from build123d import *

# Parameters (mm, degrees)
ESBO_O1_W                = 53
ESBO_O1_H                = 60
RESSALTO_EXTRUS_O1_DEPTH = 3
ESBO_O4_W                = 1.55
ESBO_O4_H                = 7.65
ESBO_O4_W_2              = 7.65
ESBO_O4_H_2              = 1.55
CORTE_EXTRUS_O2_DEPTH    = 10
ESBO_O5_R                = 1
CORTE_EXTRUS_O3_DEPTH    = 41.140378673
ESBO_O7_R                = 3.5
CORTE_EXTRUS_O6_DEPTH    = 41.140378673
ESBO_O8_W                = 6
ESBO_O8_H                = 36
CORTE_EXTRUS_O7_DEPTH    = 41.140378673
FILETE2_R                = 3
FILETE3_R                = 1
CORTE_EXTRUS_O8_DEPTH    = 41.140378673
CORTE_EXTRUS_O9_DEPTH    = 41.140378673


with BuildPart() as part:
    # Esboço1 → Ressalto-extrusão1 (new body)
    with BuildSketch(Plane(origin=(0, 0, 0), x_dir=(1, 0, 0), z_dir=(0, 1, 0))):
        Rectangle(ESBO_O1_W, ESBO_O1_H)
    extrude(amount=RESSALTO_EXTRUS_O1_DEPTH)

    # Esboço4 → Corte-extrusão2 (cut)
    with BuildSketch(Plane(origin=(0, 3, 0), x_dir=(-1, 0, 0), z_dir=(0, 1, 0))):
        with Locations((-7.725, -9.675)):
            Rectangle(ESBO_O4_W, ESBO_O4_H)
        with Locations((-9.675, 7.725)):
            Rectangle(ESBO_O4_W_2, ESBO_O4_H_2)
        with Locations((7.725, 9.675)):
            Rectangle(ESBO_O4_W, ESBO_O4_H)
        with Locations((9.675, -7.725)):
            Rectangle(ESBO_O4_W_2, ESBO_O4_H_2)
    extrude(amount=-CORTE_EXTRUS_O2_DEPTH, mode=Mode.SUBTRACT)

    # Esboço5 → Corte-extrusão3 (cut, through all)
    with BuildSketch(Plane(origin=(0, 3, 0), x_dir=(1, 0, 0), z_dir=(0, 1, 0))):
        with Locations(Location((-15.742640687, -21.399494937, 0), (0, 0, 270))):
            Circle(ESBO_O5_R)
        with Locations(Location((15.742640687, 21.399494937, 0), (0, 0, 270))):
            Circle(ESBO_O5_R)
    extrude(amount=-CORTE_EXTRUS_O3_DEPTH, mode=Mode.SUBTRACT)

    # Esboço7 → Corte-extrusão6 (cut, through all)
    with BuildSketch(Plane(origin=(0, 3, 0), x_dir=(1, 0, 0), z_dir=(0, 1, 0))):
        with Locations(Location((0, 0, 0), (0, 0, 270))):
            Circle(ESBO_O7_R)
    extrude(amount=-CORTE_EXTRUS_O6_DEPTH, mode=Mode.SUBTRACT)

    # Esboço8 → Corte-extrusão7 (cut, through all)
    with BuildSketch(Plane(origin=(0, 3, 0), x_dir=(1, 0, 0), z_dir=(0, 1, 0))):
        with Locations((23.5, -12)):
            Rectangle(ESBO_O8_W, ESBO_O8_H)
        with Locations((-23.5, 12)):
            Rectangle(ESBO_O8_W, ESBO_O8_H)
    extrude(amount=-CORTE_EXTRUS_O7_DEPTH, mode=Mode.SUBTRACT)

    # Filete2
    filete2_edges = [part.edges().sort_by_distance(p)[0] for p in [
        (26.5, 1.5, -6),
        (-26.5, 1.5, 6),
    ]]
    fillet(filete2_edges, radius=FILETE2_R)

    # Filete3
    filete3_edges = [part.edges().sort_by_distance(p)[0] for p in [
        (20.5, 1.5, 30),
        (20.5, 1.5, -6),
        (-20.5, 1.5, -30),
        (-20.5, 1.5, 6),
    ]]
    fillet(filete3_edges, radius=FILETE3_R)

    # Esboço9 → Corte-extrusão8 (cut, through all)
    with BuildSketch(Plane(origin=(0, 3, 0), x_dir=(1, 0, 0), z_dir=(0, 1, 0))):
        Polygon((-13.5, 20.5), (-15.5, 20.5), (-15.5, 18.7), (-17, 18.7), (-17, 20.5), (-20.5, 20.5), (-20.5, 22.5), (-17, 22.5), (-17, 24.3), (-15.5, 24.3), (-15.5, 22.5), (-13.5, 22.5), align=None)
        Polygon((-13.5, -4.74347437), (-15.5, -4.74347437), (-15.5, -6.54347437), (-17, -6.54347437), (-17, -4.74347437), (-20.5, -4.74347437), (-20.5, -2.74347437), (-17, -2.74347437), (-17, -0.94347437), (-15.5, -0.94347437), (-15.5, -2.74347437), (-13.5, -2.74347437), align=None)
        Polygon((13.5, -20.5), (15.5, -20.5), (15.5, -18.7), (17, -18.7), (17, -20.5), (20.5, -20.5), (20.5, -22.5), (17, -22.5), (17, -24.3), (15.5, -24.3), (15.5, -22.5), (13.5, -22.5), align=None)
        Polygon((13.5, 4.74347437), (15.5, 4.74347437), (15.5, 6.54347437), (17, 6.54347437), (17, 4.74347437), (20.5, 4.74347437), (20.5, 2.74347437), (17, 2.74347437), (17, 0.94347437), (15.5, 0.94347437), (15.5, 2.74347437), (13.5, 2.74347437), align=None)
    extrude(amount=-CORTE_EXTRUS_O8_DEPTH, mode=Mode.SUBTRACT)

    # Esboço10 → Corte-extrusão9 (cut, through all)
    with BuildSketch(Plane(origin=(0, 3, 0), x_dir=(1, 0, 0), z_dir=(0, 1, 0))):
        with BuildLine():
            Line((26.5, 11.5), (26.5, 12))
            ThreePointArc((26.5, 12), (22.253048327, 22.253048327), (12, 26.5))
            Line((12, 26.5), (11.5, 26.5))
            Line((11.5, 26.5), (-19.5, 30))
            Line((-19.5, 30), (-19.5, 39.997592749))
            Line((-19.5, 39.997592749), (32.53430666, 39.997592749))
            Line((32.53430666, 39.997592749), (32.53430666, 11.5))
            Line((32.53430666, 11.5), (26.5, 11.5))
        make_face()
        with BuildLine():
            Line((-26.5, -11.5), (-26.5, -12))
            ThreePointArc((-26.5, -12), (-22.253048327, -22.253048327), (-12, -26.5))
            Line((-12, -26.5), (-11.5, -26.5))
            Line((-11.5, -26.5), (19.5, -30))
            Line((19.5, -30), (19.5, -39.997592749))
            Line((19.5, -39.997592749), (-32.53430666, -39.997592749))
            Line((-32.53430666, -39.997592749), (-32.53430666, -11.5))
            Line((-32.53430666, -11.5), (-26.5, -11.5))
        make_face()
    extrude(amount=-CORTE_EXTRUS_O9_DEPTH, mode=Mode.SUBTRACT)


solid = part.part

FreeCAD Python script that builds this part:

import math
import FreeCAD as App
import Part
import Sketcher
from FreeCAD import Vector
Q = App.Units.Quantity


def edges_at(feature, points):
    """Names of the edges that pass closest to the given points."""
    edges = feature.Shape.Edges
    near = lambda p: min(range(len(edges)), key=lambda i: edges[i].distToShape(Part.Vertex(*p))[0])
    return sorted({f"Edge{near(p) + 1}" for p in points})


def add_polygon(sketch, points):
    """Adds a closed chain of lines whose ends are joined by coincident constraints."""
    first, n = sketch.GeometryCount, len(points)
    for a, b in zip(points, points[1:] + points[:1]):
        sketch.addGeometry(Part.LineSegment(App.Vector(*a, 0), App.Vector(*b, 0)), False)
    for i in range(n):
        sketch.addConstraint(Sketcher.Constraint("Coincident", first + i, 2, first + (i + 1) % n, 1))

doc = App.newDocument("Part")
body = doc.addObject("PartDesign::Body", "Body")

# Sketch on XZ plane
sketch1 = body.newObject("Sketcher::SketchObject", "Sketch")
sketch1.AttachmentSupport = (doc.getObject("XZ_Plane"), [""])
sketch1.MapMode = "FlatFace"
add_polygon(sketch1, [(-26, -30), (-26, 30), (26, 30), (26, -30)])  # lines 0-3
sketch1.addConstraint([
    Sketcher.Constraint("Vertical", 0),
    Sketcher.Constraint("Horizontal", 1),
    Sketcher.Constraint("Vertical", 2),
    Sketcher.Constraint("Horizontal", 3),
    Sketcher.Constraint("Symmetric", 0, 2, 2, 2, -1, 1),
    Sketcher.Constraint("DistanceX", 1, 1, 1, 2, Q("53 mm")),
    Sketcher.Constraint("DistanceY", 0, 1, 0, 2, Q("60 mm")),
])
pad1 = body.newObject("PartDesign::Pad", "Pad")
pad1.Profile = sketch1
pad1.Length = 3
pad1.Reversed = True

# Sketch on XZ plane
sketch2 = body.newObject("Sketcher::SketchObject", "Sketch001")
sketch2.AttachmentSupport = (doc.getObject("XZ_Plane"), [""])
sketch2.MapMode = "FlatFace"
sketch2.AttachmentOffset = App.Placement(Vector(0, 0, -3), App.Rotation())
add_polygon(sketch2, [(8.5, -5.8), (8.5, -13.5), (7, -13.5), (7, -5.8)])  # lines 0-3
add_polygon(sketch2, [(13.5, 8.5), (13.5, 7), (5.8, 7), (5.8, 8.5)])  # lines 4-7
add_polygon(sketch2, [(-7, 13.5), (-7, 5.8), (-8.5, 5.8), (-8.5, 13.5)])  # lines 8-11
add_polygon(sketch2, [(-5.8, -7), (-5.8, -8.5), (-13.5, -8.5), (-13.5, -7)])  # lines 12-15
sketch2.addConstraint([
    Sketcher.Constraint("Vertical", 0),
    Sketcher.Constraint("Horizontal", 1),
    Sketcher.Constraint("Vertical", 2),
    Sketcher.Constraint("Horizontal", 3),
    Sketcher.Constraint("Vertical", 4),
    Sketcher.Constraint("Horizontal", 5),
    Sketcher.Constraint("Vertical", 6),
    Sketcher.Constraint("Horizontal", 7),
    Sketcher.Constraint("Vertical", 8),
    Sketcher.Constraint("Horizontal", 9),
    Sketcher.Constraint("Vertical", 10),
    Sketcher.Constraint("Horizontal", 11),
    Sketcher.Constraint("Vertical", 12),
    Sketcher.Constraint("Horizontal", 13),
    Sketcher.Constraint("Vertical", 14),
    Sketcher.Constraint("Horizontal", 15),
    Sketcher.Constraint("Symmetric", 2, 2, 8, 2, -1, 1),
    Sketcher.Constraint("Symmetric", 0, 2, 10, 2, -1, 1),
    Sketcher.Constraint("Symmetric", 6, 2, 12, 2, -1, 1),
    Sketcher.Constraint("Symmetric", 4, 2, 14, 2, -1, 1),
    Sketcher.Constraint("Equal", 15, 0),
    Sketcher.Constraint("Equal", 11, 4),
    Sketcher.Constraint("DistanceX", 3, 2, 4, 2, Q("5 mm")),
    Sketcher.Constraint("DistanceY", 1, 2, 6, 2, Q("22 mm")),
    Sketcher.Constraint("DistanceX", 9, 2, 3, 2, Q("17 mm")),
    Sketcher.Constraint("DistanceY", 6, 2, 10, 2, Q("5 mm")),
    Sketcher.Constraint("DistanceX", 1, 2, 1, 1, Q("1.55 mm")),
    Sketcher.Constraint("DistanceX", 5, 2, 5, 1, Q("7.65 mm")),
])
pocket1 = body.newObject("PartDesign::Pocket", "Pocket")
pocket1.Profile = sketch2
pocket1.Length = 10
pocket1.Reversed = True

# Sketch on XZ plane
sketch3 = body.newObject("Sketcher::SketchObject", "Sketch002")
sketch3.AttachmentSupport = (doc.getObject("XZ_Plane"), [""])
sketch3.MapMode = "FlatFace"
sketch3.AttachmentOffset = App.Placement(Vector(0, 0, -3), App.Rotation())
sketch3.addGeometry([
    Part.Circle(Vector(-15.7, 21.4, 0), Vector(0, 0, 1), 1),
    Part.Circle(Vector(15.7, -21.4, 0), Vector(0, 0, 1), 1),
], False)
sketch3.addConstraint([
    Sketcher.Constraint("Equal", 0, 1),
    Sketcher.Constraint("Symmetric", 0, 3, 1, 3, -1, 1),
    Sketcher.Constraint("Diameter", 0, Q("2 mm")),
    Sketcher.Constraint("DistanceX", 0, 3, -1, 1, Q("15.742641 mm")),
    Sketcher.Constraint("DistanceY", 1, 3, 0, 3, Q("42.79899 mm")),
])
pocket2 = body.newObject("PartDesign::Pocket", "Pocket001")
pocket2.Profile = sketch3
pocket2.Type = "ThroughAll"
pocket2.Reversed = True

# Sketch on XZ plane
sketch4 = body.newObject("Sketcher::SketchObject", "Sketch003")
sketch4.AttachmentSupport = (doc.getObject("XZ_Plane"), [""])
sketch4.MapMode = "FlatFace"
sketch4.AttachmentOffset = App.Placement(Vector(0, 0, -3), App.Rotation())
sketch4.addGeometry(Part.Circle(Vector(0, 0, 0), Vector(0, 0, 1), 3.5), False)
sketch4.addConstraint([
    Sketcher.Constraint("Coincident", 0, 3, -1, 1),
    Sketcher.Constraint("Diameter", 0, Q("7 mm")),
])
pocket3 = body.newObject("PartDesign::Pocket", "Pocket002")
pocket3.Profile = sketch4
pocket3.Type = "ThroughAll"
pocket3.Reversed = True

# Sketch on XZ plane
sketch5 = body.newObject("Sketcher::SketchObject", "Sketch004")
sketch5.AttachmentSupport = (doc.getObject("XZ_Plane"), [""])
sketch5.MapMode = "FlatFace"
sketch5.AttachmentOffset = App.Placement(Vector(0, 0, -3), App.Rotation())
add_polygon(sketch5, [(20, -6), (20, 30), (26, 30), (26, -6)])  # lines 0-3
add_polygon(sketch5, [(-26, -30), (-26, 6), (-20, 6), (-20, -30)])  # lines 4-7
sketch5.addConstraint([
    Sketcher.Constraint("Vertical", 0),
    Sketcher.Constraint("Horizontal", 1),
    Sketcher.Constraint("Vertical", 2),
    Sketcher.Constraint("Horizontal", 3),
    Sketcher.Constraint("Vertical", 4),
    Sketcher.Constraint("Horizontal", 5),
    Sketcher.Constraint("Vertical", 6),
    Sketcher.Constraint("Horizontal", 7),
    Sketcher.Constraint("Symmetric", 2, 2, 4, 2, -1, 1),
    Sketcher.Constraint("Symmetric", 0, 2, 6, 2, -1, 1),
    Sketcher.Constraint("DistanceX", 1, 1, 1, 2, Q("6 mm")),
    Sketcher.Constraint("DistanceY", 0, 1, 0, 2, Q("36 mm")),
    Sketcher.Constraint("DistanceY", -1, 1, 0, 2, Q("30 mm")),
    Sketcher.Constraint("DistanceX", 4, 2, 3, 2, Q("47 mm")),
])
pocket4 = body.newObject("PartDesign::Pocket", "Pocket003")
pocket4.Profile = sketch5
pocket4.Type = "ThroughAll"
pocket4.Reversed = True
doc.recompute()

fillet = body.newObject("PartDesign::Fillet", "Fillet")
fillet.Base = (pocket4, edges_at(pocket4, [(26.5, 1.5, -6), (-26.5, 1.5, 6)]))
fillet.Radius = 3
doc.recompute()

fillet2 = body.newObject("PartDesign::Fillet", "Fillet001")
fillet2.Base = (fillet, edges_at(fillet, [
    (20.5, 1.5, 30),
    (20.5, 1.5, -6),
    (-20.5, 1.5, -30),
    (-20.5, 1.5, 6),
]))
fillet2.Radius = 1

# Sketch on XZ plane
sketch6 = body.newObject("Sketcher::SketchObject", "Sketch005")
sketch6.AttachmentSupport = (doc.getObject("XZ_Plane"), [""])
sketch6.MapMode = "FlatFace"
sketch6.AttachmentOffset = App.Placement(Vector(0, 0, -3), App.Rotation())
add_polygon(sketch6, [(-15.5, -20.5), (-13.5, -20.5), (-13.5, -22.5), (-15.5, -22.5), (-15.5, -24.3), (-17, -24.3), (-17, -22.5), (-20.5, -22.5), (-20.5, -20.5), (-17, -20.5), (-17, -18.7), (-15.5, -18.7)])  # lines 0-11
add_polygon(sketch6, [(-15.5, 4.7), (-13.5, 4.7), (-13.5, 2.7), (-15.5, 2.7), (-15.5, 0.9), (-17, 0.9), (-17, 2.7), (-20.5, 2.7), (-20.5, 4.7), (-17, 4.7), (-17, 6.5), (-15.5, 6.5)])  # lines 12-23
add_polygon(sketch6, [(15.5, 20.5), (13.5, 20.5), (13.5, 22.5), (15.5, 22.5), (15.5, 24.3), (17, 24.3), (17, 22.5), (20.5, 22.5), (20.5, 20.5), (17, 20.5), (17, 18.7), (15.5, 18.7)])  # lines 24-35
add_polygon(sketch6, [(15.5, -4.7), (13.5, -4.7), (13.5, -2.7), (15.5, -2.7), (15.5, -0.9), (17, -0.9), (17, -2.7), (20.5, -2.7), (20.5, -4.7), (17, -4.7), (17, -6.5), (15.5, -6.5)])  # lines 36-47
sketch6.addConstraint([
    Sketcher.Constraint("Horizontal", 0),
    Sketcher.Constraint("Vertical", 1),
    Sketcher.Constraint("Horizontal", 2),
    Sketcher.Constraint("Vertical", 3),
    Sketcher.Constraint("Horizontal", 4),
    Sketcher.Constraint("Vertical", 5),
    Sketcher.Constraint("Horizontal", 6),
    Sketcher.Constraint("Vertical", 7),
    Sketcher.Constraint("Horizontal", 8),
    Sketcher.Constraint("Vertical", 9),
    Sketcher.Constraint("Horizontal", 10),
    Sketcher.Constraint("Vertical", 11),
    Sketcher.Constraint("Horizontal", 12),
    Sketcher.Constraint("Vertical", 13),
    Sketcher.Constraint("Horizontal", 14),
    Sketcher.Constraint("Vertical", 15),
    Sketcher.Constraint("Horizontal", 16),
    Sketcher.Constraint("Vertical", 17),
    Sketcher.Constraint("Horizontal", 18),
    Sketcher.Constraint("Vertical", 19),
    Sketcher.Constraint("Horizontal", 20),
    Sketcher.Constraint("Vertical", 21),
    Sketcher.Constraint("Horizontal", 22),
    Sketcher.Constraint("Vertical", 23),
    Sketcher.Constraint("Horizontal", 24),
    Sketcher.Constraint("Vertical", 25),
    Sketcher.Constraint("Horizontal", 26),
    Sketcher.Constraint("Vertical", 27),
    Sketcher.Constraint("Horizontal", 28),
    Sketcher.Constraint("Vertical", 29),
    Sketcher.Constraint("Horizontal", 30),
    Sketcher.Constraint("Vertical", 31),
    Sketcher.Constraint("Horizontal", 32),
    Sketcher.Constraint("Vertical", 33),
    Sketcher.Constraint("Horizontal", 34),
    Sketcher.Constraint("Vertical", 35),
    Sketcher.Constraint("Horizontal", 36),
    Sketcher.Constraint("Vertical", 37),
    Sketcher.Constraint("Horizontal", 38),
    Sketcher.Constraint("Vertical", 39),
    Sketcher.Constraint("Horizontal", 40),
    Sketcher.Constraint("Vertical", 41),
    Sketcher.Constraint("Horizontal", 42),
    Sketcher.Constraint("Vertical", 43),
    Sketcher.Constraint("Horizontal", 44),
    Sketcher.Constraint("Vertical", 45),
    Sketcher.Constraint("Horizontal", 46),
    Sketcher.Constraint("Vertical", 47),
    Sketcher.Constraint("Symmetric", 0, 2, 24, 2, -1, 1),
    Sketcher.Constraint("Symmetric", 2, 2, 26, 2, -1, 1),
    Sketcher.Constraint("Symmetric", 4, 2, 28, 2, -1, 1),
    Sketcher.Constraint("Symmetric", 6, 2, 30, 2, -1, 1),
    Sketcher.Constraint("Symmetric", 8, 2, 32, 2, -1, 1),
    Sketcher.Constraint("Symmetric", 10, 2, 34, 2, -1, 1),
    Sketcher.Constraint("Symmetric", 12, 2, 36, 2, -1, 1),
    Sketcher.Constraint("Symmetric", 14, 2, 38, 2, -1, 1),
    Sketcher.Constraint("Symmetric", 16, 2, 40, 2, -1, 1),
    Sketcher.Constraint("Symmetric", 18, 2, 42, 2, -1, 1),
    Sketcher.Constraint("Symmetric", 20, 2, 44, 2, -1, 1),
    Sketcher.Constraint("Symmetric", 22, 2, 46, 2, -1, 1),
    Sketcher.Constraint("Horizontal", 2, 2, 5, 2),
    Sketcher.Constraint("Horizontal", 0, 2, 7, 2),
    Sketcher.Constraint("Horizontal", 14, 2, 17, 2),
    Sketcher.Constraint("Horizontal", 12, 2, 19, 2),
    Sketcher.Constraint("Vertical", 5, 2, 8, 2),
    Sketcher.Constraint("Vertical", 3, 2, 10, 2),
    Sketcher.Constraint("Vertical", 1, 2, 12, 2),
    Sketcher.Constraint("Vertical", 11, 2, 14, 2),
    Sketcher.Constraint("Vertical", 9, 2, 16, 2),
    Sketcher.Constraint("Vertical", 7, 2, 18, 2),
    Sketcher.Constraint("Vertical", 17, 2, 20, 2),
    Sketcher.Constraint("Vertical", 15, 2, 22, 2),
    Sketcher.Constraint("Equal", 38, 1),
    Sketcher.Constraint("Equal", 5, 9),
    Sketcher.Constraint("Equal", 7, 13),
    Sketcher.Constraint("Equal", 11, 15),
    Sketcher.Constraint("Equal", 17, 21),
    Sketcher.Constraint("DistanceX", 0, 1, 0, 2, Q("2 mm")),
    Sketcher.Constraint("DistanceX", 4, 2, 4, 1, Q("1.5 mm")),
    Sketcher.Constraint("DistanceX", 6, 2, 6, 1, Q("3.5 mm")),
    Sketcher.Constraint("DistanceY", 3, 2, 3, 1, Q("1.8 mm")),
    Sketcher.Constraint("DistanceX", 4, 2, -1, 1, Q("17 mm")),
    Sketcher.Constraint("DistanceY", 0, 2, -1, 1, Q("20.5 mm")),
    Sketcher.Constraint("DistanceY", -1, 1, 12, 2, Q("4.743474 mm")),
])
pocket5 = body.newObject("PartDesign::Pocket", "Pocket004")
pocket5.Profile = sketch6
pocket5.Type = "ThroughAll"
pocket5.Reversed = True

# Sketch on XZ plane
sketch7 = body.newObject("Sketcher::SketchObject", "Sketch006")
sketch7.AttachmentSupport = (doc.getObject("XZ_Plane"), [""])
sketch7.MapMode = "FlatFace"
sketch7.AttachmentOffset = App.Placement(Vector(0, 0, -3), App.Rotation())
sketch7.addGeometry([
    Part.LineSegment(Vector(26.5, -12, 0), Vector(26.5, -11.5, 0)),  # 0
    Part.LineSegment(Vector(26.5, -11.5, 0), Vector(32.5, -11.5, 0)),  # 1
    Part.LineSegment(Vector(32.5, -11.5, 0), Vector(32.5, -40, 0)),  # 2
    Part.LineSegment(Vector(32.5, -40, 0), Vector(-19.5, -40, 0)),  # 3
    Part.LineSegment(Vector(-19.5, -40, 0), Vector(-19.5, -30, 0)),  # 4
    Part.LineSegment(Vector(-19.5, -30, 0), Vector(11.5, -26.5, 0)),  # 5
    Part.LineSegment(Vector(11.5, -26.5, 0), Vector(12, -26.5, 0)),  # 6
    Part.ArcOfCircle(Part.Circle(Vector(12, -12, 0), Vector(0, 0, 1), 14.5), math.radians(-90), math.radians(0)),  # 7
    Part.LineSegment(Vector(-26.5, 12, 0), Vector(-26.5, 11.5, 0)),  # 8
    Part.LineSegment(Vector(-26.5, 11.5, 0), Vector(-32.5, 11.5, 0)),  # 9
    Part.LineSegment(Vector(-32.5, 11.5, 0), Vector(-32.5, 40, 0)),  # 10
    Part.LineSegment(Vector(-32.5, 40, 0), Vector(19.5, 40, 0)),  # 11
    Part.LineSegment(Vector(19.5, 40, 0), Vector(19.5, 30, 0)),  # 12
    Part.LineSegment(Vector(19.5, 30, 0), Vector(-11.5, 26.5, 0)),  # 13
    Part.LineSegment(Vector(-11.5, 26.5, 0), Vector(-12, 26.5, 0)),  # 14
    Part.ArcOfCircle(Part.Circle(Vector(-12, 12, 0), Vector(0, 0, 1), 14.5), math.radians(90), math.radians(180)),  # 15
], False)
sketch7.addConstraint([
    Sketcher.Constraint("Coincident", 0, 2, 1, 1),
    Sketcher.Constraint("Coincident", 1, 2, 2, 1),
    Sketcher.Constraint("Coincident", 2, 2, 3, 1),
    Sketcher.Constraint("Coincident", 3, 2, 4, 1),
    Sketcher.Constraint("Coincident", 4, 2, 5, 1),
    Sketcher.Constraint("Coincident", 5, 2, 6, 1),
    Sketcher.Constraint("Tangent", 6, 2, 7, 1),
    Sketcher.Constraint("Tangent", 7, 2, 0, 1),
    Sketcher.Constraint("Coincident", 8, 2, 9, 1),
    Sketcher.Constraint("Coincident", 9, 2, 10, 1),
    Sketcher.Constraint("Coincident", 10, 2, 11, 1),
    Sketcher.Constraint("Coincident", 11, 2, 12, 1),
    Sketcher.Constraint("Coincident", 12, 2, 13, 1),
    Sketcher.Constraint("Coincident", 13, 2, 14, 1),
    Sketcher.Constraint("Tangent", 14, 2, 15, 1),
    Sketcher.Constraint("Tangent", 15, 2, 8, 1),
    Sketcher.Constraint("Vertical", 0),
    Sketcher.Constraint("Horizontal", 1),
    Sketcher.Constraint("Vertical", 2),
    Sketcher.Constraint("Horizontal", 3),
    Sketcher.Constraint("Vertical", 4),
    Sketcher.Constraint("Horizontal", 6),
    Sketcher.Constraint("Vertical", 8),
    Sketcher.Constraint("Horizontal", 9),
    Sketcher.Constraint("Vertical", 10),
    Sketcher.Constraint("Horizontal", 11),
    Sketcher.Constraint("Vertical", 12),
    Sketcher.Constraint("Horizontal", 14),
    Sketcher.Constraint("Equal", 7, 15),
    Sketcher.Constraint("Symmetric", 7, 3, 15, 3, -1, 1),
    Sketcher.Constraint("Symmetric", 1, 2, 9, 2, -1, 1),
    Sketcher.Constraint("Symmetric", 3, 2, 11, 2, -1, 1),
    Sketcher.Constraint("Parallel", 5, 13),
    Sketcher.Constraint("Equal", 6, 14),
    Sketcher.Constraint("Equal", 14, 0),
    Sketcher.Constraint("Radius", 7, Q("14.5 mm")),
    Sketcher.Constraint("DistanceX", 6, 1, 6, 2, Q("0.5 mm")),
    Sketcher.Constraint("DistanceX", -1, 1, 7, 3, Q("12 mm")),
    Sketcher.Constraint("DistanceY", 7, 3, -1, 1, Q("12 mm")),
    Sketcher.Constraint("DistanceY", 4, 2, -1, 1, Q("30 mm")),
    Sketcher.Constraint("DistanceX", 3, 2, 0, 2, Q("46 mm")),
    Sketcher.Constraint("DistanceX", 1, 1, 1, 2, Q("6.034307 mm")),
    Sketcher.Constraint("DistanceY", 2, 2, 2, 1, Q("28.497593 mm")),
])
pocket6 = body.newObject("PartDesign::Pocket", "Pocket005")
pocket6.Profile = sketch7
pocket6.Type = "ThroughAll"
pocket6.Reversed = True

doc.recompute()
